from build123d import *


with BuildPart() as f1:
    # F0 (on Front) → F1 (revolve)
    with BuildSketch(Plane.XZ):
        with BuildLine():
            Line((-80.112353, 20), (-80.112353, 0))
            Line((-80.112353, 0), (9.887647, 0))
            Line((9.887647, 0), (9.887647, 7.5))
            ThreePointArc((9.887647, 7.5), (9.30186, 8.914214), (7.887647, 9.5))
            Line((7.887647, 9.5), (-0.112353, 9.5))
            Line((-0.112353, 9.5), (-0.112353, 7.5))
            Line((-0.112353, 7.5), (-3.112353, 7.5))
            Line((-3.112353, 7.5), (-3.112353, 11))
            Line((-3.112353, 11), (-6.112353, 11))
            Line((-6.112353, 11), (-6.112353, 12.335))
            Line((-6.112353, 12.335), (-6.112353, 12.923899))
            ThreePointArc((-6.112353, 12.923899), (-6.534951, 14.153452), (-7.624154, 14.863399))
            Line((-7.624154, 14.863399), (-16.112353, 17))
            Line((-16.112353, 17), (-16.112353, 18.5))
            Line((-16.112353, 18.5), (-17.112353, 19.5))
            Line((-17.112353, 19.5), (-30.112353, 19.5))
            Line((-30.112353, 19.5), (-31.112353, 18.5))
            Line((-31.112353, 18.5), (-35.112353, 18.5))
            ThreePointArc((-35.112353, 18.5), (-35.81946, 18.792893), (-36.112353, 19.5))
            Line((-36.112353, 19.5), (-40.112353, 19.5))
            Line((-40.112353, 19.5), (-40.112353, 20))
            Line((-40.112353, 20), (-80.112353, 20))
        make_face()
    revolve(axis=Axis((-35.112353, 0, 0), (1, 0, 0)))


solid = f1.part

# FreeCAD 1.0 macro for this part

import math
import FreeCAD as App
import Part
import Sketcher

V = App.Vector

doc = App.newDocument("Part")
body = doc.addObject("PartDesign::Body", "Body")

# Sketch on XZ plane
sketch1 = body.newObject("Sketcher::SketchObject", "Sketch")
sketch1.AttachmentSupport = (doc.getObject("XZ_Plane"), [""])
sketch1.MapMode = "FlatFace"
sketch1.addGeometry([
    Part.LineSegment(V(-80.1, 20, 0), V(-80.1, 0, 0)),  # 0
    Part.LineSegment(V(-80.1, 0, 0), V(9.9, 0, 0)),  # 1
    Part.LineSegment(V(9.9, 0, 0), V(9.9, 7.5, 0)),  # 2
    Part.ArcOfCircle(Part.Circle(V(7.9, 7.5, 0), V(0, 0, 1), 2), math.radians(0), math.radians(90)),  # 3
    Part.LineSegment(V(7.9, 9.5, 0), V(-0.1, 9.5, 0)),  # 4
    Part.LineSegment(V(-0.1, 9.5, 0), V(-0.1, 7.5, 0)),  # 5
    Part.LineSegment(V(-0.1, 7.5, 0), V(-3.1, 7.5, 0)),  # 6
    Part.LineSegment(V(-3.1, 7.5, 0), V(-3.1, 11, 0)),  # 7
    Part.LineSegment(V(-3.1, 11, 0), V(-6.1, 11, 0)),  # 8
    Part.LineSegment(V(-6.1, 11, 0), V(-6.1, 12.9, 0)),  # 9
    Part.ArcOfCircle(Part.Circle(V(-8.1, 12.9, 0), V(0, 0, 1), 2), math.radians(0), math.radians(76)),  # 10
    Part.LineSegment(V(-7.6, 14.9, 0), V(-16.1, 17, 0)),  # 11
    Part.LineSegment(V(-16.1, 17, 0), V(-16.1, 18.5, 0)),  # 12
    Part.LineSegment(V(-16.1, 18.5, 0), V(-17.1, 19.5, 0)),  # 13
    Part.LineSegment(V(-17.1, 19.5, 0), V(-30.1, 19.5, 0)),  # 14
    Part.LineSegment(V(-30.1, 19.5, 0), V(-31.1, 18.5, 0)),  # 15
    Part.LineSegment(V(-31.1, 18.5, 0), V(-35.1, 18.5, 0)),  # 16
    Part.ArcOfCircle(Part.Circle(V(-35.1, 19.5, 0), V(0, 0, 1), 1), math.radians(180), math.radians(270)),  # 17
    Part.LineSegment(V(-36.1, 19.5, 0), V(-40.1, 19.5, 0)),  # 18
    Part.LineSegment(V(-40.1, 19.5, 0), V(-40.1, 20, 0)),  # 19
    Part.LineSegment(V(-40.1, 20, 0), V(-80.1, 20, 0)),  # 20
], False)
sketch1.addConstraint([
    Sketcher.Constraint("Coincident", 0, 2, 1, 1),
    Sketcher.Constraint("Coincident", 1, 2, 2, 1),
    Sketcher.Constraint("Tangent", 2, 2, 3, 1),
    Sketcher.Constraint("Tangent", 3, 2, 4, 1),
    Sketcher.Constraint("Coincident", 4, 2, 5, 1),
    Sketcher.Constraint("Coincident", 5, 2, 6, 1),
    Sketcher.Constraint("Coincident", 6, 2, 7, 1),
    Sketcher.Constraint("Coincident", 7, 2, 8, 1),
    Sketcher.Constraint("Coincident", 8, 2, 9, 1),
    Sketcher.Constraint("Tangent", 9, 2, 10, 1),
    Sketcher.Constraint("Tangent", 10, 2, 11, 1),
    Sketcher.Constraint("Coincident", 11, 2, 12, 1),
    Sketcher.Constraint("Coincident", 12, 2, 13, 1),
    Sketcher.Constraint("Coincident", 13, 2, 14, 1),
    Sketcher.Constraint("Coincident", 14, 2, 15, 1),
    Sketcher.Constraint("Coincident", 15, 2, 16, 1),
    Sketcher.Constraint("Tangent", 16, 2, 17, 2),
    Sketcher.Constraint("Coincident", 17, 1, 18, 1),
    Sketcher.Constraint("Coincident", 18, 2, 19, 1),
    Sketcher.Constraint("Coincident", 19, 2, 20, 1),
    Sketcher.Constraint("Coincident", 20, 2, 0, 1),
    Sketcher.Constraint("Vertical", 0),
    Sketcher.Constraint("Horizontal", 1),
    Sketcher.Constraint("Vertical", 2),
    Sketcher.Constraint("Horizontal", 4),
    Sketcher.Constraint("Vertical", 5),
    Sketcher.Constraint("Horizontal", 6),
    Sketcher.Constraint("Vertical", 7),
    Sketcher.Constraint("Horizontal", 8),
    Sketcher.Constraint("Vertical", 9),
    Sketcher.Constraint("Vertical", 12),
    Sketcher.Constraint("Horizontal", 14),
    Sketcher.Constraint("Horizontal", 16),
    Sketcher.Constraint("Horizontal", 18),
    Sketcher.Constraint("Vertical", 19),
    Sketcher.Constraint("Horizontal", 20),
    Sketcher.Constraint("Equal", 3, 10),
    Sketcher.Constraint("PointOnObject", 0, 2, -1),
    Sketcher.Constraint("Perpendicular", 13, 15),
    Sketcher.Constraint("Horizontal", 2, 2, 5, 2),
    Sketcher.Constraint("Horizontal", 17, 3, 13, 2),
    Sketcher.Constraint("Horizontal", 12, 2, 15, 2),
    Sketcher.Constraint("Horizontal", 14, 2, 17, 1),
    Sketcher.Constraint("Equal", 6, 8),
    Sketcher.Constraint("Equal", 16, 18),
    Sketcher.Constraint("Equal", 13, 15),
    Sketcher.Constraint("Radius", 3, 2.0),
    Sketcher.Constraint("Radius", 17, 0.999999),
    Sketcher.Constraint("DistanceX", 1, 1, 1, 2, 90.0),
    Sketcher.Constraint("DistanceX", 4, 2, 4, 1, 8.0),
    Sketcher.Constraint("DistanceX", 6, 2, 6, 1, 3.0),
    Sketcher.Constraint("DistanceX", 14, 2, 14, 1, 13.0),
    Sketcher.Constraint("DistanceX", 16, 2, 16, 1, 4.0),
    Sketcher.Constraint("DistanceX", 20, 2, 20, 1, 40.0),
    Sketcher.Constraint("DistanceY", 0, 2, 0, 1, 20.0),
    Sketcher.Constraint("DistanceY", 2, 1, 2, 2, 7.5),
    Sketcher.Constraint("DistanceY", 7, 1, 7, 2, 3.5),
    Sketcher.Constraint("DistanceY", 12, 1, 12, 2, 1.5),
    Sketcher.Constraint("DistanceY", 19, 1, 19, 2, 0.5),
    Sketcher.Constraint("DistanceY", 9, 1, 9, 2, 1.923899),
    Sketcher.Constraint("DistanceX", -1, 1, 3, 3, 7.887647),
])
revolution = body.newObject("PartDesign::Revolution", "Revolution")
revolution.Profile = sketch1
revolution.ReferenceAxis = (sketch1, ["H_Axis"])
revolution.Angle = 360

doc.recompute()
